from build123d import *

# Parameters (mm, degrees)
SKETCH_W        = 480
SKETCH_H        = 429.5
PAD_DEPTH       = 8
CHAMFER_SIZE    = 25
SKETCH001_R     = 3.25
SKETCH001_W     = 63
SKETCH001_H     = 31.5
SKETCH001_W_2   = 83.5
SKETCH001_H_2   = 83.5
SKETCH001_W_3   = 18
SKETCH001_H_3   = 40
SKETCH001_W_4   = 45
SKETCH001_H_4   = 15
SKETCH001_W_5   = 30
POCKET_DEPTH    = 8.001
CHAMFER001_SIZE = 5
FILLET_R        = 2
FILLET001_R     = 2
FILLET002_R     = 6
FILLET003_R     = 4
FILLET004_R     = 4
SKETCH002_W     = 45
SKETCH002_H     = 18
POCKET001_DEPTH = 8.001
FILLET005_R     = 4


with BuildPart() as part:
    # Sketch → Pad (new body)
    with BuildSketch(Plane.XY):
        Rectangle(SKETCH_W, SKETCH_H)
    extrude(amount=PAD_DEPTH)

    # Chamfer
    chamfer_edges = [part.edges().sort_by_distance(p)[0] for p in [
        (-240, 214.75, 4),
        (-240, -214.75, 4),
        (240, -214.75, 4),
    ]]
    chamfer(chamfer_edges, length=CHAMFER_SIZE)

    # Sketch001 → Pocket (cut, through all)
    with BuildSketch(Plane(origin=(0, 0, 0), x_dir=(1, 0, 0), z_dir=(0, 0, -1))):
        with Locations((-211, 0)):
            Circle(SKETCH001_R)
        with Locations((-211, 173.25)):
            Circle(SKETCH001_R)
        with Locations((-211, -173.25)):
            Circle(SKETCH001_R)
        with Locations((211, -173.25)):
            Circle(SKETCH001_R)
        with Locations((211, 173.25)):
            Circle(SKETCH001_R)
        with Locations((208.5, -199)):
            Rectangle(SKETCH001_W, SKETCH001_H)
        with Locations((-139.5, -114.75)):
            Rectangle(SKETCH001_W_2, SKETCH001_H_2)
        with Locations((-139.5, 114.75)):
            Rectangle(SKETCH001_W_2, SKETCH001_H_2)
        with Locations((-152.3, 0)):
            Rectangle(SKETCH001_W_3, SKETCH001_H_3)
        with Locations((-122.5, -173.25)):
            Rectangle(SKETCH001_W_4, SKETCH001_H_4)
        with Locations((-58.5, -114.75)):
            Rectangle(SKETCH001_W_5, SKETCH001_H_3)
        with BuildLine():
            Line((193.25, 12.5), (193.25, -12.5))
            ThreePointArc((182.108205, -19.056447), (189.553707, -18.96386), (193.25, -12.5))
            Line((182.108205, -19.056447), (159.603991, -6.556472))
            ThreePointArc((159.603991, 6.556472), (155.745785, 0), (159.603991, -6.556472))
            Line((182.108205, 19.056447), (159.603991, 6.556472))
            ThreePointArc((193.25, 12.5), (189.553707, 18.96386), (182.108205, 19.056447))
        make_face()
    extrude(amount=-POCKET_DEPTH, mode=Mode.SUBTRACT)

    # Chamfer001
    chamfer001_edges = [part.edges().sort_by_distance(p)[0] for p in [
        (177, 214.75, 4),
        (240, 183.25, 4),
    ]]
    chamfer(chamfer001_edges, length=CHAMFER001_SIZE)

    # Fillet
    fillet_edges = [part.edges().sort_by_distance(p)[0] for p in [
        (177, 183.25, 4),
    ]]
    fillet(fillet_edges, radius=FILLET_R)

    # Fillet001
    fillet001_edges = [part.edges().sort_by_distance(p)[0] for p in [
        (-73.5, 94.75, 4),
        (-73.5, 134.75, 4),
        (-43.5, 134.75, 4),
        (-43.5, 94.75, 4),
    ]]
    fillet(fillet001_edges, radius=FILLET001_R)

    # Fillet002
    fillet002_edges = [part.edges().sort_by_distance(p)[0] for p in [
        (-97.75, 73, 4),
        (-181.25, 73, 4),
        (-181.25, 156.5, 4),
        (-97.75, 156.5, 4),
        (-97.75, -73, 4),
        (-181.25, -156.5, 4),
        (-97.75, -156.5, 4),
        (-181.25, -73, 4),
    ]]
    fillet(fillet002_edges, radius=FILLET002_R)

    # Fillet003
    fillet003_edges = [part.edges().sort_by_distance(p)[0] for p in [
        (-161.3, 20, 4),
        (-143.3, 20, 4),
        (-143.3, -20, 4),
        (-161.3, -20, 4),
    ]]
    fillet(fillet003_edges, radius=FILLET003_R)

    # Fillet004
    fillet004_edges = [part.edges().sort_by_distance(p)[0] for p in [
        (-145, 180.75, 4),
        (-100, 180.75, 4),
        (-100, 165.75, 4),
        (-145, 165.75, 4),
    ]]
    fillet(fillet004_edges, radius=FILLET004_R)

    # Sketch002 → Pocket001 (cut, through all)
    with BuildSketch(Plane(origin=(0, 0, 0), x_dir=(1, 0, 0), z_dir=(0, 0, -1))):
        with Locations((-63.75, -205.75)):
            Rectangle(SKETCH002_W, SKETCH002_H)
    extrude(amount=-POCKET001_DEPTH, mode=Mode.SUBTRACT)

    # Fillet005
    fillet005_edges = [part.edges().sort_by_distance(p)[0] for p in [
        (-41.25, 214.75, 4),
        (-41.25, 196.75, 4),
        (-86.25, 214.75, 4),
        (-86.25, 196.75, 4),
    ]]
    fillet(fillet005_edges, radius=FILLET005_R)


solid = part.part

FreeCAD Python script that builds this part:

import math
import FreeCAD as App
import Part
import Sketcher
from FreeCAD import Vector
Q = App.Units.Quantity


def edges_at(feature, points):
    """Names of the edges that pass closest to the given points."""
    edges = feature.Shape.Edges
    near = lambda p: min(range(len(edges)), key=lambda i: edges[i].distToShape(Part.Vertex(*p))[0])
    return sorted({f"Edge{near(p) + 1}" for p in points})

doc = App.newDocument("Part")
params = doc.addObject("Spreadsheet::Sheet", "Params")
for row, (alias, value) in enumerate([
    ("sketch1_width", "480 mm"),
    ("sketch1_height", "429.5 mm"),
    ("pad1_length", "8 mm"),
    ("chamfer_size", "25 mm"),
    ("sketch2_diameter", "6.5 mm"),
    ("sketch2_radius", "7.5 mm"),
    ("sketch2_width", "63 mm"),
    ("sketch2_width2", "18 mm"),
    ("sketch2_width3", "45 mm"),
    ("chamfer2_size", "5 mm"),
    ("fillet_radius", "2 mm"),
    ("fillet2_radius", "2 mm"),
    ("fillet3_radius", "6 mm"),
    ("fillet4_radius", "4 mm"),
    ("fillet5_radius", "4 mm"),
    ("sketch3_width", "45 mm"),
    ("sketch3_height", "18 mm"),
    ("fillet6_radius", "4 mm"),
], start=1):
    params.set(f"A{row}", alias)
    params.set(f"B{row}", "=" + value)
    params.setAlias(f"B{row}", alias)

body = doc.addObject("PartDesign::Body", "Body")

sketch1 = doc.addObject("Sketcher::SketchObject", "Sketch")
body.addObject(sketch1)
sketch1.AttachmentSupport = (doc.XY_Plane, [""])
sketch1.MapMode = "FlatFace"
sketch1.addGeometry([
    Part.LineSegment(Vector(-240, 215, 0), Vector(-240, -215, 0)),
    Part.LineSegment(Vector(-240, -215, 0), Vector(240, -215, 0)),
    Part.LineSegment(Vector(240, -215, 0), Vector(240, 215, 0)),
    Part.LineSegment(Vector(240, 215, 0), Vector(-240, 215, 0)),
], False)
sketch1.addConstraint([
    Sketcher.Constraint("Coincident", 0, 2, 1, 1),
    Sketcher.Constraint("Coincident", 1, 2, 2, 1),
    Sketcher.Constraint("Coincident", 2, 2, 3, 1),
    Sketcher.Constraint("Coincident", 3, 2, 0, 1),
    Sketcher.Constraint("Vertical", 0),
    Sketcher.Constraint("Horizontal", 1),
    Sketcher.Constraint("Vertical", 2),
    Sketcher.Constraint("Horizontal", 3),
    Sketcher.Constraint("Symmetric", 0, 2, 2, 2, -1, 1),
    Sketcher.Constraint("DistanceX", 1, 1, 1, 2, Q("480 mm")),
    Sketcher.Constraint("DistanceY", 0, 2, 0, 1, Q("429.5 mm")),
])
sketch1.setExpression("Constraints[9]", "Params.sketch1_width")
sketch1.setExpression("Constraints[10]", "Params.sketch1_height")
pad1 = doc.addObject("PartDesign::Pad", "Pad")
body.addObject(pad1)
pad1.Profile = sketch1
pad1.setExpression("Length", "Params.pad1_length")
doc.recompute()

chamfer = doc.addObject("PartDesign::Chamfer", "Chamfer")
body.addObject(chamfer)
chamfer.Base = (pad1, edges_at(pad1, [(-240, 214.75, 4), (-240, -214.75, 4), (240, -214.75, 4)]))
chamfer.setExpression("Size", "Params.chamfer_size")

sketch2 = doc.addObject("Sketcher::SketchObject", "Sketch001")
body.addObject(sketch2)
sketch2.AttachmentSupport = (doc.XY_Plane, [""])
sketch2.MapMode = "FlatFace"
sketch2.addGeometry([
    Part.Circle(Vector(-211, 0, 0), Vector(0, 0, 1), 3.2),
    Part.Circle(Vector(-211, -173.2, 0), Vector(0, 0, 1), 3.2),
    Part.Circle(Vector(-211, 173.2, 0), Vector(0, 0, 1), 3.2),
    Part.Circle(Vector(211, 173.2, 0), Vector(0, 0, 1), 3.2),
    Part.Circle(Vector(211, -173.2, 0), Vector(0, 0, 1), 3.2),
    Part.LineSegment(Vector(177, 183.2, 0), Vector(177, 214.8, 0)),
    Part.LineSegment(Vector(177, 214.8, 0), Vector(240, 214.8, 0)),
    Part.LineSegment(Vector(240, 214.8, 0), Vector(240, 183.2, 0)),
    Part.LineSegment(Vector(240, 183.2, 0), Vector(177, 183.2, 0)),
    Part.LineSegment(Vector(-181.2, 73, 0), Vector(-181.2, 156.5, 0)),
    Part.LineSegment(Vector(-181.2, 156.5, 0), Vector(-97.8, 156.5, 0)),
    Part.LineSegment(Vector(-97.8, 156.5, 0), Vector(-97.8, 73, 0)),
    Part.LineSegment(Vector(-97.8, 73, 0), Vector(-181.2, 73, 0)),
    Part.LineSegment(Vector(-181.2, -156.5, 0), Vector(-181.2, -73, 0)),
    Part.LineSegment(Vector(-181.2, -73, 0), Vector(-97.8, -73, 0)),
    Part.LineSegment(Vector(-97.8, -73, 0), Vector(-97.8, -156.5, 0)),
    Part.LineSegment(Vector(-97.8, -156.5, 0), Vector(-181.2, -156.5, 0)),
    Part.LineSegment(Vector(-161.3, -20, 0), Vector(-161.3, 20, 0)),
    Part.LineSegment(Vector(-161.3, 20, 0), Vector(-143.3, 20, 0)),
    Part.LineSegment(Vector(-143.3, 20, 0), Vector(-143.3, -20, 0)),
    Part.LineSegment(Vector(-143.3, -20, 0), Vector(-161.3, -20, 0)),
    Part.LineSegment(Vector(-145, 165.8, 0), Vector(-145, 180.8, 0)),
    Part.LineSegment(Vector(-145, 180.8, 0), Vector(-100, 180.8, 0)),
    Part.LineSegment(Vector(-100, 180.8, 0), Vector(-100, 165.8, 0)),
    Part.LineSegment(Vector(-100, 165.8, 0), Vector(-145, 165.8, 0)),
    Part.LineSegment(Vector(-73.5, 94.8, 0), Vector(-73.5, 134.8, 0)),
    Part.LineSegment(Vector(-73.5, 134.8, 0), Vector(-43.5, 134.8, 0)),
    Part.LineSegment(Vector(-43.5, 134.8, 0), Vector(-43.5, 94.8, 0)),
    Part.LineSegment(Vector(-43.5, 94.8, 0), Vector(-73.5, 94.8, 0)),
    Part.LineSegment(Vector(193.2, 12.5, 0), Vector(193.2, -12.5, 0)),
    Part.ArcOfCircle(Part.Circle(Vector(185.8, -12.5, 0), Vector(0, 0, 1), 7.5), math.radians(-119), math.radians(0)),
    Part.LineSegment(Vector(182.1, -19.1, 0), Vector(159.6, -6.6, 0)),
    Part.ArcOfCircle(Part.Circle(Vector(163.2, 0, 0), Vector(0, 0, 1), 7.5), math.radians(119), math.radians(241)),
    Part.LineSegment(Vector(159.6, 6.6, 0), Vector(182.1, 19.1, 0)),
    Part.ArcOfCircle(Part.Circle(Vector(185.8, 12.5, 0), Vector(0, 0, 1), 7.5), math.radians(0), math.radians(119)),
], False)
sketch2.addConstraint([
    Sketcher.Constraint("Coincident", 5, 2, 6, 1),
    Sketcher.Constraint("Coincident", 6, 2, 7, 1),
    Sketcher.Constraint("Coincident", 7, 2, 8, 1),
    Sketcher.Constraint("Coincident", 8, 2, 5, 1),
    Sketcher.Constraint("Coincident", 9, 2, 10, 1),
    Sketcher.Constraint("Coincident", 10, 2, 11, 1),
    Sketcher.Constraint("Coincident", 11, 2, 12, 1),
    Sketcher.Constraint("Coincident", 12, 2, 9, 1),
    Sketcher.Constraint("Coincident", 13, 2, 14, 1),
    Sketcher.Constraint("Coincident", 14, 2, 15, 1),
    Sketcher.Constraint("Coincident", 15, 2, 16, 1),
    Sketcher.Constraint("Coincident", 16, 2, 13, 1),
    Sketcher.Constraint("Coincident", 17, 2, 18, 1),
    Sketcher.Constraint("Coincident", 18, 2, 19, 1),
    Sketcher.Constraint("Coincident", 19, 2, 20, 1),
    Sketcher.Constraint("Coincident", 20, 2, 17, 1),
    Sketcher.Constraint("Coincident", 21, 2, 22, 1),
    Sketcher.Constraint("Coincident", 22, 2, 23, 1),
    Sketcher.Constraint("Coincident", 23, 2, 24, 1),
    Sketcher.Constraint("Coincident", 24, 2, 21, 1),
    Sketcher.Constraint("Coincident", 25, 2, 26, 1),
    Sketcher.Constraint("Coincident", 26, 2, 27, 1),
    Sketcher.Constraint("Coincident", 27, 2, 28, 1),
    Sketcher.Constraint("Coincident", 28, 2, 25, 1),
    Sketcher.Constraint("Coincident", 29, 2, 30, 2),
    Sketcher.Constraint("Tangent", 30, 1, 31, 1),
    Sketcher.Constraint("Tangent", 31, 2, 32, 2),
    Sketcher.Constraint("Tangent", 32, 1, 33, 1),
    Sketcher.Constraint("Tangent", 33, 2, 34, 2),
    Sketcher.Constraint("Coincident", 34, 1, 29, 1),
    Sketcher.Constraint("Vertical", 5),
    Sketcher.Constraint("Horizontal", 6),
    Sketcher.Constraint("Vertical", 7),
    Sketcher.Constraint("Horizontal", 8),
    Sketcher.Constraint("Vertical", 9),
    Sketcher.Constraint("Horizontal", 10),
    Sketcher.Constraint("Vertical", 11),
    Sketcher.Constraint("Horizontal", 12),
    Sketcher.Constraint("Vertical", 13),
    Sketcher.Constraint("Horizontal", 14),
    Sketcher.Constraint("Vertical", 15),
    Sketcher.Constraint("Horizontal", 16),
    Sketcher.Constraint("Vertical", 17),
    Sketcher.Constraint("Horizontal", 18),
    Sketcher.Constraint("Vertical", 19),
    Sketcher.Constraint("Horizontal", 20),
    Sketcher.Constraint("Vertical", 21),
    Sketcher.Constraint("Horizontal", 22),
    Sketcher.Constraint("Vertical", 23),
    Sketcher.Constraint("Horizontal", 24),
    Sketcher.Constraint("Vertical", 25),
    Sketcher.Constraint("Horizontal", 26),
    Sketcher.Constraint("Vertical", 27),
    Sketcher.Constraint("Horizontal", 28),
    Sketcher.Constraint("Vertical", 29),
    Sketcher.Constraint("Equal", 0, 1),
    Sketcher.Constraint("Equal", 1, 2),
    Sketcher.Constraint("Equal", 2, 3),
    Sketcher.Constraint("Equal", 3, 4),
    Sketcher.Constraint("Equal", 30, 32),
    Sketcher.Constraint("Equal", 32, 34),
    Sketcher.Constraint("Symmetric", 1, 3, 3, 3, -1, 1),
    Sketcher.Constraint("Symmetric", 2, 3, 4, 3, -1, 1),
    Sketcher.Constraint("Symmetric", 2, 3, 3, 3, -2),
    Sketcher.Constraint("Symmetric", 12, 2, 13, 2, -1),
    Sketcher.Constraint("Symmetric", 10, 2, 15, 2, -1),
    Sketcher.Constraint("Symmetric", 31, 2, 32, 1, -1),
    Sketcher.Constraint("PointOnObject", 0, 3, -1),
    Sketcher.Constraint("Vertical", 0, 3, 1, 3),
    Sketcher.Constraint("Equal", 16, 9),
    Sketcher.Constraint("Equal", 19, 25),
    Sketcher.Constraint("Diameter", 0, Q("6.5 mm")),
    Sketcher.Constraint("Radius", 30, Q("7.5 mm")),
    Sketcher.Constraint("DistanceX", 6, 1, 6, 2, Q("63 mm")),
    Sketcher.Constraint("DistanceX", 18, 1, 18, 2, Q("18 mm")),
    Sketcher.Constraint("DistanceX", 22, 1, 22, 2, Q("45 mm")),
    Sketcher.Constraint("DistanceX", 26, 1, 26, 2, Q("30 mm")),
    Sketcher.Constraint("DistanceY", 17, 1, 17, 2, Q("40 mm")),
    Sketcher.Constraint("DistanceY", 21, 1, 21, 2, Q("15 mm")),
    Sketcher.Constraint("DistanceY", 29, 2, 29, 1, Q("25 mm")),
    Sketcher.Constraint("DistanceX", 10, 1, 10, 2, Q("83.5 mm")),
    Sketcher.Constraint("DistanceY", 5, 1, 5, 2, Q("31.5 mm")),
    Sketcher.Constraint("DistanceX", 0, 3, -1, 1, Q("211 mm")),
    Sketcher.Constraint("DistanceX", -1, 1, 5, 2, Q("177 mm")),
    Sketcher.Constraint("DistanceY", -1, 1, 11, 2, Q("73 mm")),
    Sketcher.Constraint("DistanceY", -1, 1, 17, 2, Q("20 mm")),
    Sketcher.Constraint("DistanceX", 21, 2, -1, 1, Q("145 mm")),
    Sketcher.Constraint("DistanceY", 4, 3, 5, 2, Q("388 mm")),
    Sketcher.Constraint("DistanceY", 3, 3, 7, 2, Q("10 mm")),
    Sketcher.Constraint("DistanceY", 25, 2, 23, 2, Q("31 mm")),
    Sketcher.Constraint("DistanceX", 17, 2, -1, 1, Q("161.3 mm")),
    Sketcher.Constraint("DistanceX", 25, 2, -1, 1, Q("73.5 mm")),
    Sketcher.Constraint("DistanceY", 29, 2, -1, 1, Q("12.5 mm")),
    Sketcher.Constraint("Angle", 31, Q("150.949999 deg")),
    Sketcher.Constraint("DistanceY", 2, 3, 21, 2, Q("7.5 mm")),
    Sketcher.Constraint("DistanceX", -1, 1, 30, 3, Q("185.75 mm")),
    Sketcher.Constraint("DistanceX", 9, 2, -1, 1, Q("181.25 mm")),
    Sketcher.Constraint("DistanceX", -1, 1, 31, 2, Q("159.603991 mm")),
])
sketch2.setExpression("Constraints[71]", "Params.sketch2_diameter")
sketch2.setExpression("Constraints[72]", "Params.sketch2_radius")
sketch2.setExpression("Constraints[73]", "Params.sketch2_width")
sketch2.setExpression("Constraints[74]", "Params.sketch2_width2")
sketch2.setExpression("Constraints[75]", "Params.sketch2_width3")
pocket1 = doc.addObject("PartDesign::Pocket", "Pocket")
body.addObject(pocket1)
pocket1.Profile = sketch2
pocket1.Type = "ThroughAll"
pocket1.Reversed = True
doc.recompute()

chamfer2 = doc.addObject("PartDesign::Chamfer", "Chamfer001")
body.addObject(chamfer2)
chamfer2.Base = (pocket1, edges_at(pocket1, [(177, 214.75, 4), (240, 183.25, 4)]))
chamfer2.setExpression("Size", "Params.chamfer2_size")
doc.recompute()

fillet = doc.addObject("PartDesign::Fillet", "Fillet")
body.addObject(fillet)
fillet.Base = (chamfer2, edges_at(chamfer2, [(177, 183.25, 4)]))
fillet.setExpression("Radius", "Params.fillet_radius")
doc.recompute()

fillet2 = doc.addObject("PartDesign::Fillet", "Fillet001")
body.addObject(fillet2)
fillet2.Base = (fillet, edges_at(fillet, [
    (-73.5, 94.75, 4),
    (-73.5, 134.75, 4),
    (-43.5, 134.75, 4),
    (-43.5, 94.75, 4),
]))
fillet2.setExpression("Radius", "Params.fillet2_radius")
doc.recompute()

fillet3 = doc.addObject("PartDesign::Fillet", "Fillet002")
body.addObject(fillet3)
fillet3.Base = (fillet2, edges_at(fillet2, [
    (-97.75, 73, 4),
    (-181.25, 73, 4),
    (-181.25, 156.5, 4),
    (-97.75, 156.5, 4),
    (-97.75, -73, 4),
    (-181.25, -156.5, 4),
    (-97.75, -156.5, 4),
    (-181.25, -73, 4),
]))
fillet3.setExpression("Radius", "Params.fillet3_radius")
doc.recompute()

fillet4 = doc.addObject("PartDesign::Fillet", "Fillet003")
body.addObject(fillet4)
fillet4.Base = (fillet3, edges_at(fillet3, [
    (-161.3, 20, 4),
    (-143.3, 20, 4),
    (-143.3, -20, 4),
    (-161.3, -20, 4),
]))
fillet4.setExpression("Radius", "Params.fillet4_radius")
doc.recompute()

fillet5 = doc.addObject("PartDesign::Fillet", "Fillet004")
body.addObject(fillet5)
fillet5.Base = (fillet4, edges_at(fillet4, [
    (-145, 180.75, 4),
    (-100, 180.75, 4),
    (-100, 165.75, 4),
    (-145, 165.75, 4),
]))
fillet5.setExpression("Radius", "Params.fillet5_radius")

sketch3 = doc.addObject("Sketcher::SketchObject", "Sketch002")
body.addObject(sketch3)
sketch3.AttachmentSupport = (doc.XY_Plane, [""])
sketch3.MapMode = "FlatFace"
sketch3.addGeometry([
    Part.LineSegment(Vector(-86, 197, 0), Vector(-86, 215, 0)),
    Part.LineSegment(Vector(-86, 215, 0), Vector(-41, 215, 0)),
    Part.LineSegment(Vector(-41, 215, 0), Vector(-41, 197, 0)),
    Part.LineSegment(Vector(-41, 197, 0), Vector(-86, 197, 0)),
], False)
sketch3.addConstraint([
    Sketcher.Constraint("Coincident", 0, 2, 1, 1),
    Sketcher.Constraint("Coincident", 1, 2, 2, 1),
    Sketcher.Constraint("Coincident", 2, 2, 3, 1),
    Sketcher.Constraint("Coincident", 3, 2, 0, 1),
    Sketcher.Constraint("Vertical", 0),
    Sketcher.Constraint("Horizontal", 1),
    Sketcher.Constraint("Vertical", 2),
    Sketcher.Constraint("Horizontal", 3),
    Sketcher.Constraint("DistanceX", 1, 1, 1, 2, Q("45 mm")),
    Sketcher.Constraint("DistanceY", 0, 1, 0, 2, Q("18 mm")),
    Sketcher.Constraint("DistanceX", 0, 2, -1, 1, Q("86.25 mm")),
    Sketcher.Constraint("DistanceY", -1, 1, 0, 2, Q("214.75 mm")),
])
sketch3.setExpression("Constraints[8]", "Params.sketch3_width")
sketch3.setExpression("Constraints[9]", "Params.sketch3_height")
pocket2 = doc.addObject("PartDesign::Pocket", "Pocket001")
body.addObject(pocket2)
pocket2.Profile = sketch3
pocket2.Type = "ThroughAll"
pocket2.Reversed = True
doc.recompute()

fillet6 = doc.addObject("PartDesign::Fillet", "Fillet005")
body.addObject(fillet6)
fillet6.Base = (pocket2, edges_at(pocket2, [
    (-41.25, 214.75, 4),
    (-41.25, 196.75, 4),
    (-86.25, 214.75, 4),
    (-86.25, 196.75, 4),
]))
fillet6.setExpression("Radius", "Params.fillet6_radius")

doc.recompute()
